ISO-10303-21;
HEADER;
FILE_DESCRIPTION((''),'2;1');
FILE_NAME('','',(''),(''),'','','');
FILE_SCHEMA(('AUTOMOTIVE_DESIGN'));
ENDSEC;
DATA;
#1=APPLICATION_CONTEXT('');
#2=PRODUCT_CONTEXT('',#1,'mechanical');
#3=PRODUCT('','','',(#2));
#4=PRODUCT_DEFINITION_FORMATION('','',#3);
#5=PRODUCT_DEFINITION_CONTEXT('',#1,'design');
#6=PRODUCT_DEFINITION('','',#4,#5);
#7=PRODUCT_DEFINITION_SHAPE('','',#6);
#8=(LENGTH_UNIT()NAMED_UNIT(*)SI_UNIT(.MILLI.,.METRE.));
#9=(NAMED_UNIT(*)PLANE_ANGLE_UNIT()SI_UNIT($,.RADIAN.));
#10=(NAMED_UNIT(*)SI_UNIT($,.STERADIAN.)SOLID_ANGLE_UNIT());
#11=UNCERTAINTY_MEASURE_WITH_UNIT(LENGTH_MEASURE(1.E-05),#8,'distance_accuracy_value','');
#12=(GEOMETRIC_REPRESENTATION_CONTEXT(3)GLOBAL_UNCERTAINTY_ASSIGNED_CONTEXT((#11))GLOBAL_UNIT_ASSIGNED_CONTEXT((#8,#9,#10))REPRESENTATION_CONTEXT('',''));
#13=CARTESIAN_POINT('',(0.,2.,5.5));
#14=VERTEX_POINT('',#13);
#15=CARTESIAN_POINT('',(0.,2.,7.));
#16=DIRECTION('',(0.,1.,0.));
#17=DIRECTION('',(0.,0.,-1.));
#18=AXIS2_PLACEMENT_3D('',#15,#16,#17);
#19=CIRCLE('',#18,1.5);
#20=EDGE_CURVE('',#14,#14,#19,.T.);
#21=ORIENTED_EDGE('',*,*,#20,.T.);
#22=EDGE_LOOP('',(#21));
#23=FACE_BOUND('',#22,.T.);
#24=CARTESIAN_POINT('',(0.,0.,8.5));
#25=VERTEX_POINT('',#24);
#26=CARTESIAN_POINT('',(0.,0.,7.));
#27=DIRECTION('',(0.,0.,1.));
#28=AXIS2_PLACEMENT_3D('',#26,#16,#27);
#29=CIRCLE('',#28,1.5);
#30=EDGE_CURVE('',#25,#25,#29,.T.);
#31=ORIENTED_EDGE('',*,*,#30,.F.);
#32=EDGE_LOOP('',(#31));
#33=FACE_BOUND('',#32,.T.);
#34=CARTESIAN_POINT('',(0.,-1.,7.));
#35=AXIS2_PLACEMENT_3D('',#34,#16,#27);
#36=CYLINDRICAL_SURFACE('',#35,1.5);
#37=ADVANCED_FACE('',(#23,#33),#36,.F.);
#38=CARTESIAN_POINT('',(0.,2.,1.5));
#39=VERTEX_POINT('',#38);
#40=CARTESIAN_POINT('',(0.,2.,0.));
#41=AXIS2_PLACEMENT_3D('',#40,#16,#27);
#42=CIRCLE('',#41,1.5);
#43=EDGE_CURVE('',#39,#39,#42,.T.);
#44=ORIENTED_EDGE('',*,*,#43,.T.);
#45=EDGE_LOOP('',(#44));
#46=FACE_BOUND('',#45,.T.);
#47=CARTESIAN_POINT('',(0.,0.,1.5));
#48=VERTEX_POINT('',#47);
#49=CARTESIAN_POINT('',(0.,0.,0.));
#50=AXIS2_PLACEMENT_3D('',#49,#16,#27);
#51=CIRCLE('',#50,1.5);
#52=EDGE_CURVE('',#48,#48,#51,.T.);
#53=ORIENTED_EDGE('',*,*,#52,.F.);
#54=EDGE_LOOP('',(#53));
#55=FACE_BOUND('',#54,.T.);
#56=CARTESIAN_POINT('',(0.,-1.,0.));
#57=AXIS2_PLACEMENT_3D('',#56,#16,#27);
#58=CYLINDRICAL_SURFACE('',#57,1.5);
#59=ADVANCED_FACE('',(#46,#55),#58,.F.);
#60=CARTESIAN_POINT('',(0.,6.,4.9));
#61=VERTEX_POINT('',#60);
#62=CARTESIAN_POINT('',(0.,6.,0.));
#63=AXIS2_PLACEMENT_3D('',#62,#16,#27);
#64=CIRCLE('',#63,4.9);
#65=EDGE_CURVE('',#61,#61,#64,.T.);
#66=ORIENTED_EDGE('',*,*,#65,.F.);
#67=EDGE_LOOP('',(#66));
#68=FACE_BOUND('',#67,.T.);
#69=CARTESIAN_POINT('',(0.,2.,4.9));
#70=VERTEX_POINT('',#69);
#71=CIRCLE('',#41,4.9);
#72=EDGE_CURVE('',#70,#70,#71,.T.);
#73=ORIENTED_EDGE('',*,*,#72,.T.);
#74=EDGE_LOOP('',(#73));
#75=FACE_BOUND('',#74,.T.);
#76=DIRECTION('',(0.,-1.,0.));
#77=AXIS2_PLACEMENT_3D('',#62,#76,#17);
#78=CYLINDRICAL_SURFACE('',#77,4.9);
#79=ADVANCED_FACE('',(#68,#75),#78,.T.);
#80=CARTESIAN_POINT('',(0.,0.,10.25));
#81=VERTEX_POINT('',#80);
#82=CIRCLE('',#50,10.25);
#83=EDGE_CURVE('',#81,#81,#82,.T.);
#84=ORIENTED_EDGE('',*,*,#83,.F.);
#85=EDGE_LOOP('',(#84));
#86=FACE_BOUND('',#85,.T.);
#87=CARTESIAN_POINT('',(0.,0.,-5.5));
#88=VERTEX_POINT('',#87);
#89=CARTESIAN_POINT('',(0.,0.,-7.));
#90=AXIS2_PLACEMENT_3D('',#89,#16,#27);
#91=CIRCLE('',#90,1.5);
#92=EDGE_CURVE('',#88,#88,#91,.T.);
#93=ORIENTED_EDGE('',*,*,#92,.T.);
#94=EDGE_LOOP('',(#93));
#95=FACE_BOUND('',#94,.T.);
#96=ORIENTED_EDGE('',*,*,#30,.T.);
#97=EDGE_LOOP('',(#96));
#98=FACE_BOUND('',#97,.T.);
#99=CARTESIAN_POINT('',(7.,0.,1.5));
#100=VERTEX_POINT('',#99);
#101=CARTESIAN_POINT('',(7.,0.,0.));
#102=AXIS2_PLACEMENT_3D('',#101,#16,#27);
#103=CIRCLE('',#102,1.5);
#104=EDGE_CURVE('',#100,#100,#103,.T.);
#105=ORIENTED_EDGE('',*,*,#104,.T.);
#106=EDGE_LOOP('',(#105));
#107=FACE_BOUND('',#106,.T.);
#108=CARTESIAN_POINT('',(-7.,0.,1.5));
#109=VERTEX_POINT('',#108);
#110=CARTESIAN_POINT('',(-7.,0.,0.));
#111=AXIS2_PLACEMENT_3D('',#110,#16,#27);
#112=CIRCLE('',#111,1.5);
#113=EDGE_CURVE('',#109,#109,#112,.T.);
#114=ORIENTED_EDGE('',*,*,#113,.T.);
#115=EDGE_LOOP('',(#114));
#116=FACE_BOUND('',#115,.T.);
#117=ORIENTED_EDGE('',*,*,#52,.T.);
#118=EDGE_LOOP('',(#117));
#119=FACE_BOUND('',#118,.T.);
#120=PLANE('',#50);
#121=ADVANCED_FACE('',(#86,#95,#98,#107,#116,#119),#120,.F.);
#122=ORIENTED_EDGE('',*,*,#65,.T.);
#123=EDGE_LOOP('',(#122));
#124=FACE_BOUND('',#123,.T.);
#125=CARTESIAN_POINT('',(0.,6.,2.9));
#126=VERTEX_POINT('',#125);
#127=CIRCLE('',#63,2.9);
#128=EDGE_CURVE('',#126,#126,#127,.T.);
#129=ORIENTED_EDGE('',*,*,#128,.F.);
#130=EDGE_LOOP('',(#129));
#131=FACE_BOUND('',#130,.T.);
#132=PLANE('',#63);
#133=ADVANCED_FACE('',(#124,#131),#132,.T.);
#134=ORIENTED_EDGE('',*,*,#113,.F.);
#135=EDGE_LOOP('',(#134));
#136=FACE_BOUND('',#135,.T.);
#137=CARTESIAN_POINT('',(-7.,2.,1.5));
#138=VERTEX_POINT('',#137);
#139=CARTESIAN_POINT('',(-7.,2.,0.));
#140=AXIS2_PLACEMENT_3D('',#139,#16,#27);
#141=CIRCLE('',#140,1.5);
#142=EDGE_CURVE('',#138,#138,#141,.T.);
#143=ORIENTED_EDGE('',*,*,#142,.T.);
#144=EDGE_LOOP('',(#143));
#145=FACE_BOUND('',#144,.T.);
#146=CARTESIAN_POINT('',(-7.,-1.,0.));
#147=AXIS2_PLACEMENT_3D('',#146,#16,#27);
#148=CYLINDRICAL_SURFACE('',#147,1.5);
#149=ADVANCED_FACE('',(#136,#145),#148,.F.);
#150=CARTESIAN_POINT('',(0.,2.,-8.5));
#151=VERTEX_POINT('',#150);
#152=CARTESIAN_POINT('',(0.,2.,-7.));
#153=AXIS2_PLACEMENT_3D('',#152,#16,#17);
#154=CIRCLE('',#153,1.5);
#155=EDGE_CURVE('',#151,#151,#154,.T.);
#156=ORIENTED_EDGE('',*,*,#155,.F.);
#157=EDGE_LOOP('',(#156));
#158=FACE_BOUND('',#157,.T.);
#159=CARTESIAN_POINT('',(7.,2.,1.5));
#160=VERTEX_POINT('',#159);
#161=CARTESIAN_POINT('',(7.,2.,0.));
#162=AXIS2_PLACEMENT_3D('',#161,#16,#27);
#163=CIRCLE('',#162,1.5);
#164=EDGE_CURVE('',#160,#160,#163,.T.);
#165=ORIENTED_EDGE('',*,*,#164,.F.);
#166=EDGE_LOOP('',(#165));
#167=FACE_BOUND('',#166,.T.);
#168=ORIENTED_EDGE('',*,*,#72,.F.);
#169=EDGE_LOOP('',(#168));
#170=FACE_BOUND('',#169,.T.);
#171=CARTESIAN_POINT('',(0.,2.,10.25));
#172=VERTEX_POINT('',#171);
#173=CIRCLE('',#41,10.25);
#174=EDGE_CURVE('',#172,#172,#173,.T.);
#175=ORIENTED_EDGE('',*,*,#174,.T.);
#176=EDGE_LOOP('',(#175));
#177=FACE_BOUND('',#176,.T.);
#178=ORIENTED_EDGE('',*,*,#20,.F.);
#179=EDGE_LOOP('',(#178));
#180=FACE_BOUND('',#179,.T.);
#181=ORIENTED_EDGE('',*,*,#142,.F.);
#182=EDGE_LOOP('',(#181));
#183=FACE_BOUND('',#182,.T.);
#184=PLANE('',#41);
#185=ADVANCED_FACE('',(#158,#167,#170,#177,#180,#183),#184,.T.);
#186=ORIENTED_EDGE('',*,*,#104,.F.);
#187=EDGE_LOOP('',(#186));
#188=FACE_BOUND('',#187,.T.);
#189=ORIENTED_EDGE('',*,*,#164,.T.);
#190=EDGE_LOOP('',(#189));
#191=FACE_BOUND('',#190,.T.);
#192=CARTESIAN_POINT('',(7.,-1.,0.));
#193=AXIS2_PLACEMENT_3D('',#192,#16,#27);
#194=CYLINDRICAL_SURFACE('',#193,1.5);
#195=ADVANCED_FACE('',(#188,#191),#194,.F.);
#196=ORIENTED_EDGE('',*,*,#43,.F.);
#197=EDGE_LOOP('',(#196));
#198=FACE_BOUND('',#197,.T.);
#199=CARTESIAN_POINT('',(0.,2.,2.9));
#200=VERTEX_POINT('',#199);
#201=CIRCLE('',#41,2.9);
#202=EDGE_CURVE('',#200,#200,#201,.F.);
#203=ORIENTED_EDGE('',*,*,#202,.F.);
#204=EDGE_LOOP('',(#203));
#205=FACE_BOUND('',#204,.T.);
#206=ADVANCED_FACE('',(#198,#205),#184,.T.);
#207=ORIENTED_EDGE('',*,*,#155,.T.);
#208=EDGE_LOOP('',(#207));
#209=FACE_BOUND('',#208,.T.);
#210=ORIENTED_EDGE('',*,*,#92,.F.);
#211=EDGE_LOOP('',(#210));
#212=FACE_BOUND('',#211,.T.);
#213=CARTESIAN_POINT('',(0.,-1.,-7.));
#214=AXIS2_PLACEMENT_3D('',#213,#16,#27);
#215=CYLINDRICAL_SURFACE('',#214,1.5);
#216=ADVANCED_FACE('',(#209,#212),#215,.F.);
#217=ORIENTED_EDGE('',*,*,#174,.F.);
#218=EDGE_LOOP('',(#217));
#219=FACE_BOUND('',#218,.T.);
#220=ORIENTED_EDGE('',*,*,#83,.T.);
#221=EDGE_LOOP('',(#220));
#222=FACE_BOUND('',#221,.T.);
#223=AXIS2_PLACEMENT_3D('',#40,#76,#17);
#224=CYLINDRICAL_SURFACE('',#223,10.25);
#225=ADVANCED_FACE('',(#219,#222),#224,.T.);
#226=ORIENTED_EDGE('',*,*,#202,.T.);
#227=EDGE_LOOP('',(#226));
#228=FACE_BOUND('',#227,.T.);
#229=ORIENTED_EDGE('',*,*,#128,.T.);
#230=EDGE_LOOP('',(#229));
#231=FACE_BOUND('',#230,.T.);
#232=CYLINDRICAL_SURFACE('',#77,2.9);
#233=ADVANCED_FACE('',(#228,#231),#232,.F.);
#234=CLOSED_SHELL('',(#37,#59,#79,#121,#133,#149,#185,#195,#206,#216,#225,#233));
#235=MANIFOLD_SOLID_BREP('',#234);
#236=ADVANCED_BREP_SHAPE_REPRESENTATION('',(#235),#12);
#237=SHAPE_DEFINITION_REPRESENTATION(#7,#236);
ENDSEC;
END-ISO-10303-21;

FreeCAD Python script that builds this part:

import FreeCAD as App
import Part
import Sketcher
from FreeCAD import Vector

doc = App.newDocument("Part")
body = doc.addObject("PartDesign::Body", "Body")

sketch1 = body.newObject("Sketcher::SketchObject", "Sketch")
sketch1.AttachmentSupport = (doc.getObject("XZ_Plane"), [""])
sketch1.MapMode = "FlatFace"
sketch1.addGeometry(Part.Circle(Vector(0, 0, 0), Vector(0, 0, 1), 10), False)
sketch1.addConstraint(Sketcher.Constraint("Coincident", 0, 3, -1, 1))
sketch1.addConstraint(Sketcher.Constraint("Diameter", 0, 20.5))
pad1 = body.newObject("PartDesign::Pad", "Pad")
pad1.Profile = sketch1
pad1.Length = 2
pad1.Reversed = True

sketch2 = body.newObject("Sketcher::SketchObject", "Sketch001")
sketch2.AttachmentSupport = (doc.getObject("XZ_Plane"), [""])
sketch2.MapMode = "FlatFace"
sketch2.AttachmentOffset = App.Placement(Vector(0, 0, -2), App.Rotation())
sketch2.addGeometry(Part.Circle(Vector(7, 0, 0), Vector(0, 0, 1), 1.5), False)
sketch2.addGeometry(Part.Circle(Vector(0, 0, 0), Vector(0, 0, 1), 1.5), False)
sketch2.addGeometry(Part.Circle(Vector(0, -7, 0), Vector(0, 0, 1), 1.5), False)
sketch2.addGeometry(Part.Circle(Vector(-7, 0, 0), Vector(0, 0, 1), 1.5), False)
sketch2.addGeometry(Part.Circle(Vector(0, 7, 0), Vector(0, 0, 1), 1.5), False)
sketch2.addConstraint(Sketcher.Constraint("Coincident", 1, 3, -1, 1))
sketch2.addConstraint(Sketcher.Constraint("Equal", 0, 1))
sketch2.addConstraint(Sketcher.Constraint("Equal", 1, 2))
sketch2.addConstraint(Sketcher.Constraint("Equal", 2, 3))
sketch2.addConstraint(Sketcher.Constraint("Equal", 3, 4))
sketch2.addConstraint(Sketcher.Constraint("Symmetric", 0, 3, 3, 3, -1, 1))
sketch2.addConstraint(Sketcher.Constraint("Symmetric", 2, 3, 4, 3, -1, 1))
sketch2.addConstraint(Sketcher.Constraint("PointOnObject", 0, 3, -1))
sketch2.addConstraint(Sketcher.Constraint("PointOnObject", 2, 3, -2))
sketch2.addConstraint(Sketcher.Constraint("Diameter", 0, 3.0))
sketch2.addConstraint(Sketcher.Constraint("DistanceX", -1, 1, 0, 3, 7.0))
sketch2.addConstraint(Sketcher.Constraint("DistanceY", 2, 3, -1, 1, 7.0))
pocket1 = body.newObject("PartDesign::Pocket", "Pocket")
pocket1.Profile = sketch2
pocket1.Length = 3
pocket1.Reversed = True

sketch3 = body.newObject("Sketcher::SketchObject", "Sketch002")
sketch3.AttachmentSupport = (doc.getObject("XZ_Plane"), [""])
sketch3.MapMode = "FlatFace"
sketch3.AttachmentOffset = App.Placement(Vector(0, 0, -2), App.Rotation())
sketch3.addGeometry(Part.Circle(Vector(0, 0, 0), Vector(0, 0, 1), 4.9), False)
sketch3.addGeometry(Part.Circle(Vector(0, 0, 0), Vector(0, 0, 1), 2.9), False)
sketch3.addConstraint(Sketcher.Constraint("Coincident", 0, 3, -1, 1))
sketch3.addConstraint(Sketcher.Constraint("Coincident", 1, 3, -1, 1))
sketch3.addConstraint(Sketcher.Constraint("Diameter", 0, 9.8))
sketch3.addConstraint(Sketcher.Constraint("Diameter", 1, 5.8))
pad2 = body.newObject("PartDesign::Pad", "Pad001")
pad2.Profile = sketch3
pad2.Length = 4
pad2.Reversed = True

doc.recompute()
